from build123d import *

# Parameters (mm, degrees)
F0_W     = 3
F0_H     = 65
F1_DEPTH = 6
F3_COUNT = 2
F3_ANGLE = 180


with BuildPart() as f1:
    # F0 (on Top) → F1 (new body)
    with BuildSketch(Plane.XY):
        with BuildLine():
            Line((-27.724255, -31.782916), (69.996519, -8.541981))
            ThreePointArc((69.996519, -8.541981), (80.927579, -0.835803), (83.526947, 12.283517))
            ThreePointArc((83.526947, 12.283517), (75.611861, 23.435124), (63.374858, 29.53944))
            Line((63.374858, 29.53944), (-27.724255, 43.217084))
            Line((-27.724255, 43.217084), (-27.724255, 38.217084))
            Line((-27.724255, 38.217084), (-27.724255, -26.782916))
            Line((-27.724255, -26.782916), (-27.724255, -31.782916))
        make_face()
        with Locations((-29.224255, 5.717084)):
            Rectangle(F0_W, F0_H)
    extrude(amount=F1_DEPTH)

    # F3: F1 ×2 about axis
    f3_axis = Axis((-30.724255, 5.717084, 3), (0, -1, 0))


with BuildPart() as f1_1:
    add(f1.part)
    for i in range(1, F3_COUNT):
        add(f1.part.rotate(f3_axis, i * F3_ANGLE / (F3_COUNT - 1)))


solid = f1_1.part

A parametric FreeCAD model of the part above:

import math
import FreeCAD as App
import Part
import Sketcher
from FreeCAD import Vector
Q = App.Units.Quantity

doc = App.newDocument("Part")
body = doc.addObject("PartDesign::Body", "Body")

# Sketch on XY plane
sketch1 = body.newObject("Sketcher::SketchObject", "Sketch")
sketch1.AttachmentSupport = (doc.getObject("XY_Plane"), [""])
sketch1.MapMode = "FlatFace"
sketch1.addGeometry(Part.LineSegment(Vector(-27.724255, -31.782916, 0), Vector(69.996519, -8.541981, 0)), False)
sketch1.addGeometry(Part.ArcOfCircle(Part.Circle(Vector(65.831053, 8.972485, 0), Vector(0, 0, 1), 18.002989), math.radians(-76.621882), math.radians(10.597922)), False)
sketch1.addGeometry(Part.ArcOfCircle(Part.Circle(Vector(57.307147, 2.058218, 0), Vector(0, 0, 1), 28.143111), math.radians(21.30498), math.radians(77.549151)), False)
sketch1.addGeometry(Part.LineSegment(Vector(63.374858, 29.53944, 0), Vector(-27.724255, 43.217084, 0)), False)
sketch1.addGeometry(Part.LineSegment(Vector(-27.724255, 43.217084, 0), Vector(-27.724255, 38.217084, 0)), False)
sketch1.addGeometry(Part.LineSegment(Vector(-27.724255, 38.217084, 0), Vector(-30.724255, 38.217084, 0)), False)
sketch1.addGeometry(Part.LineSegment(Vector(-30.724255, 38.217084, 0), Vector(-30.724255, -26.782916, 0)), False)
sketch1.addGeometry(Part.LineSegment(Vector(-30.724255, -26.782916, 0), Vector(-27.724255, -26.782916, 0)), False)
sketch1.addGeometry(Part.LineSegment(Vector(-27.724255, -26.782916, 0), Vector(-27.724255, -31.782916, 0)), False)
sketch1.addConstraint(Sketcher.Constraint("Tangent", 0, 2, 1, 1))
sketch1.addConstraint(Sketcher.Constraint("Coincident", 1, 2, 2, 1))
sketch1.addConstraint(Sketcher.Constraint("Coincident", 2, 2, 3, 1))
sketch1.addConstraint(Sketcher.Constraint("Coincident", 3, 2, 4, 1))
sketch1.addConstraint(Sketcher.Constraint("Coincident", 4, 2, 5, 1))
sketch1.addConstraint(Sketcher.Constraint("Coincident", 5, 2, 6, 1))
sketch1.addConstraint(Sketcher.Constraint("Coincident", 6, 2, 7, 1))
sketch1.addConstraint(Sketcher.Constraint("Coincident", 7, 2, 8, 1))
sketch1.addConstraint(Sketcher.Constraint("Coincident", 8, 2, 0, 1))
sketch1.addConstraint(Sketcher.Constraint("Vertical", 4))
sketch1.addConstraint(Sketcher.Constraint("Horizontal", 5))
sketch1.addConstraint(Sketcher.Constraint("Vertical", 6))
sketch1.addConstraint(Sketcher.Constraint("Horizontal", 7))
sketch1.addConstraint(Sketcher.Constraint("Vertical", 8))
sketch1.addConstraint(Sketcher.Constraint("Vertical", 4, 2, 7, 2))
sketch1.addConstraint(Sketcher.Constraint("Equal", 4, 8))
sketch1.addConstraint(Sketcher.Constraint("DistanceX", 5, 2, 5, 1, Q("3 mm")))
sketch1.addConstraint(Sketcher.Constraint("DistanceY", 4, 2, 4, 1, Q("5 mm")))
sketch1.addConstraint(Sketcher.Constraint("DistanceY", 6, 2, 6, 1, Q("65 mm")))
sketch1.addConstraint(Sketcher.Constraint("Radius", 1, Q("18.002989 mm")))
sketch1.addConstraint(Sketcher.Constraint("Radius", 2, Q("28.143111 mm")))
sketch1.addConstraint(Sketcher.Constraint("DistanceY", 0, 2, 2, 3, Q("10.600199 mm")))
sketch1.addConstraint(Sketcher.Constraint("DistanceY", 0, 2, 1, 2, Q("20.825498 mm")))
sketch1.addConstraint(Sketcher.Constraint("DistanceX", 3, 2, 2, 3, Q("85.031402 mm")))
sketch1.addConstraint(Sketcher.Constraint("DistanceY", 1, 3, 3, 2, Q("34.244599 mm")))
sketch1.addConstraint(Sketcher.Constraint("DistanceY", -1, 1, 2, 3, Q("2.058218 mm")))
sketch1.addConstraint(Sketcher.Constraint("DistanceX", -1, 1, 0, 2, Q("69.996519 mm")))
sketch1.addConstraint(Sketcher.Constraint("DistanceY", -1, 1, 2, 2, Q("29.53944 mm")))
pad1 = body.newObject("PartDesign::Pad", "Pad")
pad1.Profile = sketch1
pad1.Length = 6
body2 = doc.addObject("PartDesign::Body", "Body001")
doc.recompute()

body2.BaseFeature = body
doc.recompute()

body.Placement = App.Placement(Vector(-61.44851, 0, 6), App.Rotation(Vector(0, -1, 0), 180))
boolean = body2.newObject("PartDesign::Boolean", "Boolean")
boolean.Type = "Fuse"
boolean.addObjects([body])

doc.recompute()
